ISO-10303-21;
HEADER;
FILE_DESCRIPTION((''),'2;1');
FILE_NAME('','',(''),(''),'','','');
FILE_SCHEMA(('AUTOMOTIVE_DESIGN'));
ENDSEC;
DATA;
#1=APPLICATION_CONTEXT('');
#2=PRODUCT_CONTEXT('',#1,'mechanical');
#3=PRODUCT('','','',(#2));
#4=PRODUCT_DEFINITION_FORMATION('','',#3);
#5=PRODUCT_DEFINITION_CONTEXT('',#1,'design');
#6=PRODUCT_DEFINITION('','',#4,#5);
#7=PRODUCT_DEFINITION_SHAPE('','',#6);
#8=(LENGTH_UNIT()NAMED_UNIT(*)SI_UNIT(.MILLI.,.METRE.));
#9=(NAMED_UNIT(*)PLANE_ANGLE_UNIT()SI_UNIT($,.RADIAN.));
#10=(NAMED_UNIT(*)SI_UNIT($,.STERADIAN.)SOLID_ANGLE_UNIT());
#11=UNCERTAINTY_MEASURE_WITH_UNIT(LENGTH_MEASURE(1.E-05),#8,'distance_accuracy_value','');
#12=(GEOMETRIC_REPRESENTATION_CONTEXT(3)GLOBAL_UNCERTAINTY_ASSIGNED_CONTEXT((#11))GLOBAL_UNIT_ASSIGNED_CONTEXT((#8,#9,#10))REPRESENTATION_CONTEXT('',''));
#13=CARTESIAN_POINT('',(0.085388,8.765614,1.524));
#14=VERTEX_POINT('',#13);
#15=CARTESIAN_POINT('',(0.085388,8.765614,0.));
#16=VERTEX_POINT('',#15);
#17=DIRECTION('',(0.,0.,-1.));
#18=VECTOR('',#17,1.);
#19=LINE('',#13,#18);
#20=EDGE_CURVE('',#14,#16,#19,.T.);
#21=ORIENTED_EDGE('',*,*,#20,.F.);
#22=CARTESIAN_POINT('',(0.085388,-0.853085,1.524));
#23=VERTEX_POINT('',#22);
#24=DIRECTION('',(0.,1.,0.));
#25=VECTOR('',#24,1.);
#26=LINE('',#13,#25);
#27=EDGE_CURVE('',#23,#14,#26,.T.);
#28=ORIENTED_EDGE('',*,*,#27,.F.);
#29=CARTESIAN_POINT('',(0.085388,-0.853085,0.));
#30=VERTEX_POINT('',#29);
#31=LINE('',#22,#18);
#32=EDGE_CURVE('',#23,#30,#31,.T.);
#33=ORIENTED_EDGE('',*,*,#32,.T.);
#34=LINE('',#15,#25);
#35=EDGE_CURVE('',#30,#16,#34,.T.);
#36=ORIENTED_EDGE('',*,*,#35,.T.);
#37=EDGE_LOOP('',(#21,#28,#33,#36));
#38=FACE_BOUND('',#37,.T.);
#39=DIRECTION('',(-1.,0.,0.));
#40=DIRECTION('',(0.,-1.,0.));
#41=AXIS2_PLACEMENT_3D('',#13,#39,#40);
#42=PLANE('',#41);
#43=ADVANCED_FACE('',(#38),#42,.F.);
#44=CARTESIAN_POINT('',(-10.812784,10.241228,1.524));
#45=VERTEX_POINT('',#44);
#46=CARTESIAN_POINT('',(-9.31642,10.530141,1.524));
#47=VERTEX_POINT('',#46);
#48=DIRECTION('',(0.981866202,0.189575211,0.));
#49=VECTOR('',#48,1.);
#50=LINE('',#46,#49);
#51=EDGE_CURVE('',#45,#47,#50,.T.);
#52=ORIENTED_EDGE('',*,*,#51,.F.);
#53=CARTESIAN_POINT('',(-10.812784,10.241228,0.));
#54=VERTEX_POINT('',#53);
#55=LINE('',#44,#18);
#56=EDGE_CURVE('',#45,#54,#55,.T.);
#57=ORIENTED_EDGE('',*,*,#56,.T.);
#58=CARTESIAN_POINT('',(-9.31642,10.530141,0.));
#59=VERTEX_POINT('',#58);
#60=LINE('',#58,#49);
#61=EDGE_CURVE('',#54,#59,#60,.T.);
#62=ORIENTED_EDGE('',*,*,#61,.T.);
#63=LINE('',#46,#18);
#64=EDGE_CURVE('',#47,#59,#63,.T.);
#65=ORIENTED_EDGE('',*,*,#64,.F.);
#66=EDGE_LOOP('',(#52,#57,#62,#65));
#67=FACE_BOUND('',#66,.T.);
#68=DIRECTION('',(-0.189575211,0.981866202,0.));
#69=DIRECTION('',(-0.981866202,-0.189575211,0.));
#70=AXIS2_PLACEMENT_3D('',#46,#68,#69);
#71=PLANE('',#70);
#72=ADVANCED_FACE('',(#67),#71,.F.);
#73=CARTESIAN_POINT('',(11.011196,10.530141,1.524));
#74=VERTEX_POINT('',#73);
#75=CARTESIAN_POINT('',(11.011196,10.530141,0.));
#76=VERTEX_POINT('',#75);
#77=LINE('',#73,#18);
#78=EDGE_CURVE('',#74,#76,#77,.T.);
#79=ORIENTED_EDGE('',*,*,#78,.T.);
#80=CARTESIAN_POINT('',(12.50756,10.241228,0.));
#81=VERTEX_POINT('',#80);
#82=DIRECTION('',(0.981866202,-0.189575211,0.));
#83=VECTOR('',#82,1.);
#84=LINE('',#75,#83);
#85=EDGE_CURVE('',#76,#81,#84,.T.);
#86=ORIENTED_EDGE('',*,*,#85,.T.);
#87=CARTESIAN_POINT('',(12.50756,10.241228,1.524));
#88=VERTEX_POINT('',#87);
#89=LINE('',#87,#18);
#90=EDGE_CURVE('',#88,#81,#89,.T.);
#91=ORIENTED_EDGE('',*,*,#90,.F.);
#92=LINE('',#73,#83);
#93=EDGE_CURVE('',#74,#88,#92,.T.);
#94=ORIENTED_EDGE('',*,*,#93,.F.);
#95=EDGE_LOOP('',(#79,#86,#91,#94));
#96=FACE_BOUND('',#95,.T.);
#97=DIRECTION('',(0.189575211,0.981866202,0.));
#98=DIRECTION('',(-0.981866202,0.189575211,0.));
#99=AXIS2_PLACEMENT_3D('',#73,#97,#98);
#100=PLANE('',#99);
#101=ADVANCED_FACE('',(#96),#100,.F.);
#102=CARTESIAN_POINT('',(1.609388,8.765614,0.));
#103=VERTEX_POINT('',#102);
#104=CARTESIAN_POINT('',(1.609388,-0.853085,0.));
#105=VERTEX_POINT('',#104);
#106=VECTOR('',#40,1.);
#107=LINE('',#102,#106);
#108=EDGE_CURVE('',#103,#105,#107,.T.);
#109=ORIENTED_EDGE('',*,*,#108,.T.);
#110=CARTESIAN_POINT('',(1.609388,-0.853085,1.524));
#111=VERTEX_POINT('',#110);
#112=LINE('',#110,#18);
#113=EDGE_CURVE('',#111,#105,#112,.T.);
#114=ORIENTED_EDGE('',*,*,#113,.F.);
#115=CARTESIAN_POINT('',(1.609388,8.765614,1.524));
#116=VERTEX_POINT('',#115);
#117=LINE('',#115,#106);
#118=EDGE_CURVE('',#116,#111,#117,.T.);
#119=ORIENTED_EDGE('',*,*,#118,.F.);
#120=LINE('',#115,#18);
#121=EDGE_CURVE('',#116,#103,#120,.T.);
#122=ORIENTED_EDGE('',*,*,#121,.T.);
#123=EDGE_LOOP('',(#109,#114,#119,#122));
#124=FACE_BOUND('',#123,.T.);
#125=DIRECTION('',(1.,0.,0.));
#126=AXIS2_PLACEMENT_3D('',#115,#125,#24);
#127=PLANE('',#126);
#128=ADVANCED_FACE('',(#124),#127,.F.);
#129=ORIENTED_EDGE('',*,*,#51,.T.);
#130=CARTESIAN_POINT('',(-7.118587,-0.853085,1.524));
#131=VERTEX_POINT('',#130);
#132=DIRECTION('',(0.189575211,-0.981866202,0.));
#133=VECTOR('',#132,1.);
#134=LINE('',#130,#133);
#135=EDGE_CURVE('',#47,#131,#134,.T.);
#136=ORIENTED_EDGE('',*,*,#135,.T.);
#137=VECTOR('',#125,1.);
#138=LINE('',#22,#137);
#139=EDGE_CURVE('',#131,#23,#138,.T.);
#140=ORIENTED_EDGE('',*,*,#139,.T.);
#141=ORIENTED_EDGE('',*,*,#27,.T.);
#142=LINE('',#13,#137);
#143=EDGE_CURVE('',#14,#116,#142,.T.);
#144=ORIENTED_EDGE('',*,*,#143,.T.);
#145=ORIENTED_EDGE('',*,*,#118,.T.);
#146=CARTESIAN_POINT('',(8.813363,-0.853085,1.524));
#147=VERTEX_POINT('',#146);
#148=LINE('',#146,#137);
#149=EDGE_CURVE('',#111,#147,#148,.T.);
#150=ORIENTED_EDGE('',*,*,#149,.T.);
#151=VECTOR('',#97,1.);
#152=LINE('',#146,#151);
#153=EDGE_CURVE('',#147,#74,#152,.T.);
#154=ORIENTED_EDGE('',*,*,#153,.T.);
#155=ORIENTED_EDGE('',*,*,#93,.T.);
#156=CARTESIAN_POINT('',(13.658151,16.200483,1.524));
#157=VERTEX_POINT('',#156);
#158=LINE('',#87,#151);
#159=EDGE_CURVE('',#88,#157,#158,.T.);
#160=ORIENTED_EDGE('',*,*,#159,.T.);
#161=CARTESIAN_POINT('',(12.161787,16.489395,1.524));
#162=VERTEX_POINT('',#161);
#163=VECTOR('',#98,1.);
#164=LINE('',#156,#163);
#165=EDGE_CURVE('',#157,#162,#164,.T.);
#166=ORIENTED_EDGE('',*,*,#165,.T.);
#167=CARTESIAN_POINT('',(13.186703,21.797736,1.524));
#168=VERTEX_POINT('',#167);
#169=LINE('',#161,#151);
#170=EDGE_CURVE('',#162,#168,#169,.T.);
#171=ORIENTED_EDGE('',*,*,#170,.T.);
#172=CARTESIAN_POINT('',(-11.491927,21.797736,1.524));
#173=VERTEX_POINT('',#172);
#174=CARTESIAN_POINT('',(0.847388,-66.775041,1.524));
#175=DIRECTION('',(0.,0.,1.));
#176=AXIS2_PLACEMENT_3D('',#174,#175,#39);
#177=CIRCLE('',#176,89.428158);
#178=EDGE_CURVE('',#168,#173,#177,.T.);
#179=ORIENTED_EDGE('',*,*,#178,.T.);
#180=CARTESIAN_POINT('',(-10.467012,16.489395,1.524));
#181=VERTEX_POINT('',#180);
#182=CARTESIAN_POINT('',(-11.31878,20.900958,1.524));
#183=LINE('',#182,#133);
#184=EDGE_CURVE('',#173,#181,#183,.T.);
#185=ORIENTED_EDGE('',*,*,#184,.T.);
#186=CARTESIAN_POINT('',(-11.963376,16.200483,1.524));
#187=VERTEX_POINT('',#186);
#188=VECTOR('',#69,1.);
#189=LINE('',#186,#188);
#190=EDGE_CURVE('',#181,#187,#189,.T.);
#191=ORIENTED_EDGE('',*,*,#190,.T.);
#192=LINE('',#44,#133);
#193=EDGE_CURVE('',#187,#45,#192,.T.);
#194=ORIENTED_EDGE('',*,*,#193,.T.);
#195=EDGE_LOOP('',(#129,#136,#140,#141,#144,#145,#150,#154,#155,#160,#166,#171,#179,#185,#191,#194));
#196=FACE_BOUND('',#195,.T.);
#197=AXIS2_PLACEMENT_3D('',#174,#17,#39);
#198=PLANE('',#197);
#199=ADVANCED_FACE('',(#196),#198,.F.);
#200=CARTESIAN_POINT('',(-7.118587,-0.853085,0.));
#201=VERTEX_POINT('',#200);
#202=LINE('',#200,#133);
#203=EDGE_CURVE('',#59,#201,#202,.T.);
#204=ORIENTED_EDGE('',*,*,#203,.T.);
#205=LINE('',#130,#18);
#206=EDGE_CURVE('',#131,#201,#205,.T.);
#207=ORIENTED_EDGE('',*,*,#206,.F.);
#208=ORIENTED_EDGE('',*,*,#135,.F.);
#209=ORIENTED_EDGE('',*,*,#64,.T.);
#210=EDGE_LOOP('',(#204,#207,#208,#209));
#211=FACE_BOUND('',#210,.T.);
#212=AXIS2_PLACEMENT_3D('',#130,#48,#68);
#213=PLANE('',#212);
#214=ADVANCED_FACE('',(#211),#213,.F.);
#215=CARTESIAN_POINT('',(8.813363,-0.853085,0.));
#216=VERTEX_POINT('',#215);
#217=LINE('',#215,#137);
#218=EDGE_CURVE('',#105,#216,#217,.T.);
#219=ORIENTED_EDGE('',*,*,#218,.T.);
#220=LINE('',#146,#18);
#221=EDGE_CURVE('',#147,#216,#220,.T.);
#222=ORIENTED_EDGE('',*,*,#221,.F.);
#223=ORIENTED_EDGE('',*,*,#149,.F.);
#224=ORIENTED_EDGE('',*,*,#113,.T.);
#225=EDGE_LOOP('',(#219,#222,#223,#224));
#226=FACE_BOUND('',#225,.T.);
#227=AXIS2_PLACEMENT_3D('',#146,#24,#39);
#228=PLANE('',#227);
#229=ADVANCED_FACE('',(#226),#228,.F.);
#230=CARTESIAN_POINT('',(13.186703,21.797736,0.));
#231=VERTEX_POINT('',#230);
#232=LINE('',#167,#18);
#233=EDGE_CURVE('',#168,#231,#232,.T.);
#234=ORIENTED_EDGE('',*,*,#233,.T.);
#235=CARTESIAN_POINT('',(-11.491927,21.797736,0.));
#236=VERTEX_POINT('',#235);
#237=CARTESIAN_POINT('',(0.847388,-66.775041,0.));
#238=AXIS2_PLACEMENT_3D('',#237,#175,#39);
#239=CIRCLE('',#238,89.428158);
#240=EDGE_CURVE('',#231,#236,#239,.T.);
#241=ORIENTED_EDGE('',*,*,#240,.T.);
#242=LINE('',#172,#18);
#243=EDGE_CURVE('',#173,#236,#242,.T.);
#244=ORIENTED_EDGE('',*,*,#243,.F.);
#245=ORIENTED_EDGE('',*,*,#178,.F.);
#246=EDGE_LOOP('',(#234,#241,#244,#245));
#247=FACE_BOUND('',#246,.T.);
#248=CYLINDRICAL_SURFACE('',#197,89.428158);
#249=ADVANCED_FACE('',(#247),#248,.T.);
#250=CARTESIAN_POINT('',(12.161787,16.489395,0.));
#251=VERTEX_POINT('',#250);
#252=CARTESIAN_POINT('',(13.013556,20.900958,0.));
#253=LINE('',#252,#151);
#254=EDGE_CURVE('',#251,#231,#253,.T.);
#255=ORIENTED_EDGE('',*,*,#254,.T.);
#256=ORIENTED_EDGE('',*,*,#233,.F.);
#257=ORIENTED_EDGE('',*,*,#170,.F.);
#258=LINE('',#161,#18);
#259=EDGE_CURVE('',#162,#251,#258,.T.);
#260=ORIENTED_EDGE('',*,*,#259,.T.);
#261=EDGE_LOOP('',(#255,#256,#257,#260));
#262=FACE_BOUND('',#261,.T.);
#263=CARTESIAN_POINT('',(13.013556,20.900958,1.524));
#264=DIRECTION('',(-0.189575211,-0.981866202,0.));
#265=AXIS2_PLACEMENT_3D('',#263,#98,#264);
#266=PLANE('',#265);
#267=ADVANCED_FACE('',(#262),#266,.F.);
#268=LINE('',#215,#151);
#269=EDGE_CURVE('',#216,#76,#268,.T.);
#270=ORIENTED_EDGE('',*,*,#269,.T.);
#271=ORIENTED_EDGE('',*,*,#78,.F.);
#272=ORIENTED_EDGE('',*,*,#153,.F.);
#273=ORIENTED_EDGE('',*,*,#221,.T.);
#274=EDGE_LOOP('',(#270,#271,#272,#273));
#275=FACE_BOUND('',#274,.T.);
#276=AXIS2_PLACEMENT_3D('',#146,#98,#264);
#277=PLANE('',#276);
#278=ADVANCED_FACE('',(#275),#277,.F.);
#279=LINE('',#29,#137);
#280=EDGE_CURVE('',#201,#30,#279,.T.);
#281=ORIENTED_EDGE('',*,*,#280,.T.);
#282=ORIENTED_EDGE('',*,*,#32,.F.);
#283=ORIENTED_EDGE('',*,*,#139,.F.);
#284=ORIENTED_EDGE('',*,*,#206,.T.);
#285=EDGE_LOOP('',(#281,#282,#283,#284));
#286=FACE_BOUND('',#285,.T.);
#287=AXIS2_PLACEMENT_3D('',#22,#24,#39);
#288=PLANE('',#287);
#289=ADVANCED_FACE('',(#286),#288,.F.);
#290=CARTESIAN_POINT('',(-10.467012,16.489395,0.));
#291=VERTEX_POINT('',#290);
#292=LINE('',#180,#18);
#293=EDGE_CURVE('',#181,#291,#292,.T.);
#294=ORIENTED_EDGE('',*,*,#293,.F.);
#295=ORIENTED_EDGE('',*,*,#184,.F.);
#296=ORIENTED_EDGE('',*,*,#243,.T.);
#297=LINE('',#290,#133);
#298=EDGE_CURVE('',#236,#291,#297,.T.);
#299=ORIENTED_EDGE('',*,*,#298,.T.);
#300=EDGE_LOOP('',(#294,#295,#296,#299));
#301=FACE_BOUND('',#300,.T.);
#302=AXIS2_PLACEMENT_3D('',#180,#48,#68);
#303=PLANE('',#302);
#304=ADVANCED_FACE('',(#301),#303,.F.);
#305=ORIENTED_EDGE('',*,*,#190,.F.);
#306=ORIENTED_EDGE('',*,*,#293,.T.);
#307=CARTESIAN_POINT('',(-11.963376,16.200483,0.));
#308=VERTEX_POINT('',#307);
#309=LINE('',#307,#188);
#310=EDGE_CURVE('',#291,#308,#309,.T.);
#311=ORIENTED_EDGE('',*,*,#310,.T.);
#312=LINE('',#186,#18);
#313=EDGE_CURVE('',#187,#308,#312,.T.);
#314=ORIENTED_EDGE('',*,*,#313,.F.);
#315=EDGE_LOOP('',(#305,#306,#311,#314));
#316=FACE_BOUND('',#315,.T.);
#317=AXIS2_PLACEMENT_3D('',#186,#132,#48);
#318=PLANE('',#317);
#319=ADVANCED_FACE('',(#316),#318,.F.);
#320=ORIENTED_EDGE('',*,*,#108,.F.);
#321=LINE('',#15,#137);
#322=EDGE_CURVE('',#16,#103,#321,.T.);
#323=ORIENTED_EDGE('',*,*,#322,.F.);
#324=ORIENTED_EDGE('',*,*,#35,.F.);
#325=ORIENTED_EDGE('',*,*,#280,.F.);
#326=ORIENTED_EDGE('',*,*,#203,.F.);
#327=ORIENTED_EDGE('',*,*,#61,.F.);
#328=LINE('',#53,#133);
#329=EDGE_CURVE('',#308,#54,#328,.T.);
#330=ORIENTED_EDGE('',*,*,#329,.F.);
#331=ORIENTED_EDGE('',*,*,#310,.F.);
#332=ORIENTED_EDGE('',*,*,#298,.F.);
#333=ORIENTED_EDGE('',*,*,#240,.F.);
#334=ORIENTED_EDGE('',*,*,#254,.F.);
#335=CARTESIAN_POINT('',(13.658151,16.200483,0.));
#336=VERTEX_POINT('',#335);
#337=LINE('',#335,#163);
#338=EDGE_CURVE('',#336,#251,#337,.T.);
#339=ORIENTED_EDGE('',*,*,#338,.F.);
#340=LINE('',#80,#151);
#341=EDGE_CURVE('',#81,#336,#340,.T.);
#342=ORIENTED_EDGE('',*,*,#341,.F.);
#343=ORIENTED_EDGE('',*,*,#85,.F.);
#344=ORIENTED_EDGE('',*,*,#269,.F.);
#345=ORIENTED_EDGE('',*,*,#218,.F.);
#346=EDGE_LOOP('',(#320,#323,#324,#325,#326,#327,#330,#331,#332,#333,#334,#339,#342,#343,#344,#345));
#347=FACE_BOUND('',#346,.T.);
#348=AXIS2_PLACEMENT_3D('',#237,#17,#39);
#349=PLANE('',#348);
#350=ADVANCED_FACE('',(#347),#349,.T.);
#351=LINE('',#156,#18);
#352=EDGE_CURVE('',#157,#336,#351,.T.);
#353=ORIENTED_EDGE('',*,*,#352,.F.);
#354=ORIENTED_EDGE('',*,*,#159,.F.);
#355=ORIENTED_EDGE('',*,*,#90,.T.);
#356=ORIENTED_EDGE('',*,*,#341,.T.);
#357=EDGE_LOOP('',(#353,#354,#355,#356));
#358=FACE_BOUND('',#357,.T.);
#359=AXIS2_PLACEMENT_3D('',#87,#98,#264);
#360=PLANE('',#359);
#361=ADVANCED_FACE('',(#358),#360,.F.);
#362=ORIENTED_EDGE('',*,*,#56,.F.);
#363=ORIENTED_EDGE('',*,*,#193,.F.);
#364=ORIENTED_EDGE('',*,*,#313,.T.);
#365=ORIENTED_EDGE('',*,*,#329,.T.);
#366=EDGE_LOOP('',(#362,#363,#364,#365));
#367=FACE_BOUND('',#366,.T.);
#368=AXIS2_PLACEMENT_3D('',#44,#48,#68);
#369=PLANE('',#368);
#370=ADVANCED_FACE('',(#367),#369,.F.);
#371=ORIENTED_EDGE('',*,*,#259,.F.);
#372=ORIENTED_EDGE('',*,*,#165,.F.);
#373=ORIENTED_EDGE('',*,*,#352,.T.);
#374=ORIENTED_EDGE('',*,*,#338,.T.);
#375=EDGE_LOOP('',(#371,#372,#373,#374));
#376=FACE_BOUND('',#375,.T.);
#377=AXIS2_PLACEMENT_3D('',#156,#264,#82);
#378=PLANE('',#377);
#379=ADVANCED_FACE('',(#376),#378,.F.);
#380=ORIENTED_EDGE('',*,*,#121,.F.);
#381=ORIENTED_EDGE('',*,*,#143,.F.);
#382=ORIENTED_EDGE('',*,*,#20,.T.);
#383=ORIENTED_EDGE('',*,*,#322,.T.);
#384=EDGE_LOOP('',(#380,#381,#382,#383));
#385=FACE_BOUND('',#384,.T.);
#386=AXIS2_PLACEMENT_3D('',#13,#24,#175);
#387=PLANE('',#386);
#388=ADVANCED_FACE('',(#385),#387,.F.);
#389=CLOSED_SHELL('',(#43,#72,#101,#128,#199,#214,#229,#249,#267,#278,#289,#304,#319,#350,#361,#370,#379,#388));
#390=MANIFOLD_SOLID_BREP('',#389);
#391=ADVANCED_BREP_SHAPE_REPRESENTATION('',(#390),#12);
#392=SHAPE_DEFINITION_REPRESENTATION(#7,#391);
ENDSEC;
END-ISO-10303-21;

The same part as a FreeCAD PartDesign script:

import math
import FreeCAD as App
import Part
import Sketcher

V = App.Vector
Q = App.Units.Quantity

doc = App.newDocument("Part")
body = doc.addObject("PartDesign::Body", "Body")

sketch1 = body.newObject("Sketcher::SketchObject", "Sketch")
sketch1.AttachmentSupport = (doc.getObject("XY_Plane"), [""])
sketch1.MapMode = "FlatFace"
sketch1.addGeometry([
    Part.LineSegment(V(0.1, -0.9, 0), V(0.1, 8.8, 0)),
    Part.LineSegment(V(0.1, 8.8, 0), V(1.6, 8.8, 0)),
    Part.LineSegment(V(1.6, 8.8, 0), V(1.6, -0.9, 0)),
    Part.LineSegment(V(1.6, -0.9, 0), V(8.8, -0.9, 0)),
    Part.LineSegment(V(8.8, -0.9, 0), V(11, 10.5, 0)),
    Part.LineSegment(V(11, 10.5, 0), V(12.5, 10.2, 0)),
    Part.LineSegment(V(12.5, 10.2, 0), V(13.7, 16.2, 0)),
    Part.LineSegment(V(13.7, 16.2, 0), V(12.2, 16.5, 0)),
    Part.LineSegment(V(12.2, 16.5, 0), V(13, 20.9, 0)),
    Part.LineSegment(V(13, 20.9, 0), V(13.2, 21.8, 0)),
    Part.ArcOfCircle(Part.Circle(V(0.8, -66.8, 0), V(0, 0, 1), 89.4), math.radians(82.07), math.radians(97.93)),
    Part.LineSegment(V(-11.5, 21.8, 0), V(-11.3, 20.9, 0)),
    Part.LineSegment(V(-11.3, 20.9, 0), V(-10.5, 16.5, 0)),
    Part.LineSegment(V(-10.5, 16.5, 0), V(-12, 16.2, 0)),
    Part.LineSegment(V(-12, 16.2, 0), V(-10.8, 10.2, 0)),
    Part.LineSegment(V(-10.8, 10.2, 0), V(-9.3, 10.5, 0)),
    Part.LineSegment(V(-9.3, 10.5, 0), V(-7.1, -0.9, 0)),
    Part.LineSegment(V(-7.1, -0.9, 0), V(0.1, -0.9, 0)),
], False)
sketch1.addConstraint([
    Sketcher.Constraint("Coincident", 0, 2, 1, 1),
    Sketcher.Constraint("Coincident", 1, 2, 2, 1),
    Sketcher.Constraint("Coincident", 2, 2, 3, 1),
    Sketcher.Constraint("Coincident", 3, 2, 4, 1),
    Sketcher.Constraint("Coincident", 4, 2, 5, 1),
    Sketcher.Constraint("Coincident", 5, 2, 6, 1),
    Sketcher.Constraint("Coincident", 6, 2, 7, 1),
    Sketcher.Constraint("Coincident", 7, 2, 8, 1),
    Sketcher.Constraint("Coincident", 8, 2, 9, 1),
    Sketcher.Constraint("Coincident", 9, 2, 10, 1),
    Sketcher.Constraint("Coincident", 10, 2, 11, 1),
    Sketcher.Constraint("Coincident", 11, 2, 12, 1),
    Sketcher.Constraint("Coincident", 12, 2, 13, 1),
    Sketcher.Constraint("Coincident", 13, 2, 14, 1),
    Sketcher.Constraint("Coincident", 14, 2, 15, 1),
    Sketcher.Constraint("Coincident", 15, 2, 16, 1),
    Sketcher.Constraint("Coincident", 16, 2, 17, 1),
    Sketcher.Constraint("Coincident", 17, 2, 0, 1),
    Sketcher.Constraint("Vertical", 0),
    Sketcher.Constraint("Horizontal", 1),
    Sketcher.Constraint("Vertical", 2),
    Sketcher.Constraint("Horizontal", 3),
    Sketcher.Constraint("Horizontal", 17),
    Sketcher.Constraint("Perpendicular", 4, 5),
    Sketcher.Constraint("Perpendicular", 5, 6),
    Sketcher.Constraint("Perpendicular", 6, 7),
    Sketcher.Constraint("Perpendicular", 7, 8),
    Sketcher.Constraint("Parallel", 8, 9),
    Sketcher.Constraint("Parallel", 11, 12),
    Sketcher.Constraint("Perpendicular", 12, 13),
    Sketcher.Constraint("Perpendicular", 13, 14),
    Sketcher.Constraint("Perpendicular", 14, 15),
    Sketcher.Constraint("Perpendicular", 15, 16),
    Sketcher.Constraint("Horizontal", 9, 2, 10, 2),
    Sketcher.Constraint("Horizontal", 8, 2, 11, 2),
    Sketcher.Constraint("Horizontal", 7, 2, 12, 2),
    Sketcher.Constraint("Horizontal", 6, 2, 13, 2),
    Sketcher.Constraint("Horizontal", 5, 2, 14, 2),
    Sketcher.Constraint("Horizontal", 4, 2, 15, 2),
    Sketcher.Constraint("Horizontal", 3, 2, 16, 2),
    Sketcher.Constraint("Equal", 3, 17),
    Sketcher.Constraint("Equal", 5, 7),
    Sketcher.Constraint("Equal", 9, 11),
    Sketcher.Constraint("DistanceX", 1, 1, 1, 2, Q("0.06 in")),
    Sketcher.Constraint("Distance", 5, Q("0.06 in")),
    Sketcher.Constraint("Radius", 10, Q("89.428158 mm")),
    Sketcher.Constraint("DistanceY", 0, 1, 0, 2, Q("9.618699 mm")),
    Sketcher.Constraint("DistanceX", 14, 2, -1, 1, Q("0.4257002 in")),
    Sketcher.Constraint("DistanceY", 4, 2, 8, 2, Q("0.4082999 in")),
    Sketcher.Constraint("DistanceX", 1, 2, 7, 2, Q("10.552399 mm")),
    Sketcher.Constraint("Distance", 4, Q("11.593459 mm")),
    Sketcher.Constraint("Distance", 8, Q("4.493038 mm")),
    Sketcher.Constraint("Distance", 9, Q("0.913341 mm")),
    Sketcher.Constraint("DistanceX", 3, 1, 3, 2, Q("7.203975 mm")),
    Sketcher.Constraint("DistanceY", 10, 3, -1, 1, Q("66.775041 mm")),
])
pad1 = body.newObject("PartDesign::Pad", "Pad")
pad1.Profile = sketch1
pad1.Length = Q("0.06 in")

doc.recompute()
